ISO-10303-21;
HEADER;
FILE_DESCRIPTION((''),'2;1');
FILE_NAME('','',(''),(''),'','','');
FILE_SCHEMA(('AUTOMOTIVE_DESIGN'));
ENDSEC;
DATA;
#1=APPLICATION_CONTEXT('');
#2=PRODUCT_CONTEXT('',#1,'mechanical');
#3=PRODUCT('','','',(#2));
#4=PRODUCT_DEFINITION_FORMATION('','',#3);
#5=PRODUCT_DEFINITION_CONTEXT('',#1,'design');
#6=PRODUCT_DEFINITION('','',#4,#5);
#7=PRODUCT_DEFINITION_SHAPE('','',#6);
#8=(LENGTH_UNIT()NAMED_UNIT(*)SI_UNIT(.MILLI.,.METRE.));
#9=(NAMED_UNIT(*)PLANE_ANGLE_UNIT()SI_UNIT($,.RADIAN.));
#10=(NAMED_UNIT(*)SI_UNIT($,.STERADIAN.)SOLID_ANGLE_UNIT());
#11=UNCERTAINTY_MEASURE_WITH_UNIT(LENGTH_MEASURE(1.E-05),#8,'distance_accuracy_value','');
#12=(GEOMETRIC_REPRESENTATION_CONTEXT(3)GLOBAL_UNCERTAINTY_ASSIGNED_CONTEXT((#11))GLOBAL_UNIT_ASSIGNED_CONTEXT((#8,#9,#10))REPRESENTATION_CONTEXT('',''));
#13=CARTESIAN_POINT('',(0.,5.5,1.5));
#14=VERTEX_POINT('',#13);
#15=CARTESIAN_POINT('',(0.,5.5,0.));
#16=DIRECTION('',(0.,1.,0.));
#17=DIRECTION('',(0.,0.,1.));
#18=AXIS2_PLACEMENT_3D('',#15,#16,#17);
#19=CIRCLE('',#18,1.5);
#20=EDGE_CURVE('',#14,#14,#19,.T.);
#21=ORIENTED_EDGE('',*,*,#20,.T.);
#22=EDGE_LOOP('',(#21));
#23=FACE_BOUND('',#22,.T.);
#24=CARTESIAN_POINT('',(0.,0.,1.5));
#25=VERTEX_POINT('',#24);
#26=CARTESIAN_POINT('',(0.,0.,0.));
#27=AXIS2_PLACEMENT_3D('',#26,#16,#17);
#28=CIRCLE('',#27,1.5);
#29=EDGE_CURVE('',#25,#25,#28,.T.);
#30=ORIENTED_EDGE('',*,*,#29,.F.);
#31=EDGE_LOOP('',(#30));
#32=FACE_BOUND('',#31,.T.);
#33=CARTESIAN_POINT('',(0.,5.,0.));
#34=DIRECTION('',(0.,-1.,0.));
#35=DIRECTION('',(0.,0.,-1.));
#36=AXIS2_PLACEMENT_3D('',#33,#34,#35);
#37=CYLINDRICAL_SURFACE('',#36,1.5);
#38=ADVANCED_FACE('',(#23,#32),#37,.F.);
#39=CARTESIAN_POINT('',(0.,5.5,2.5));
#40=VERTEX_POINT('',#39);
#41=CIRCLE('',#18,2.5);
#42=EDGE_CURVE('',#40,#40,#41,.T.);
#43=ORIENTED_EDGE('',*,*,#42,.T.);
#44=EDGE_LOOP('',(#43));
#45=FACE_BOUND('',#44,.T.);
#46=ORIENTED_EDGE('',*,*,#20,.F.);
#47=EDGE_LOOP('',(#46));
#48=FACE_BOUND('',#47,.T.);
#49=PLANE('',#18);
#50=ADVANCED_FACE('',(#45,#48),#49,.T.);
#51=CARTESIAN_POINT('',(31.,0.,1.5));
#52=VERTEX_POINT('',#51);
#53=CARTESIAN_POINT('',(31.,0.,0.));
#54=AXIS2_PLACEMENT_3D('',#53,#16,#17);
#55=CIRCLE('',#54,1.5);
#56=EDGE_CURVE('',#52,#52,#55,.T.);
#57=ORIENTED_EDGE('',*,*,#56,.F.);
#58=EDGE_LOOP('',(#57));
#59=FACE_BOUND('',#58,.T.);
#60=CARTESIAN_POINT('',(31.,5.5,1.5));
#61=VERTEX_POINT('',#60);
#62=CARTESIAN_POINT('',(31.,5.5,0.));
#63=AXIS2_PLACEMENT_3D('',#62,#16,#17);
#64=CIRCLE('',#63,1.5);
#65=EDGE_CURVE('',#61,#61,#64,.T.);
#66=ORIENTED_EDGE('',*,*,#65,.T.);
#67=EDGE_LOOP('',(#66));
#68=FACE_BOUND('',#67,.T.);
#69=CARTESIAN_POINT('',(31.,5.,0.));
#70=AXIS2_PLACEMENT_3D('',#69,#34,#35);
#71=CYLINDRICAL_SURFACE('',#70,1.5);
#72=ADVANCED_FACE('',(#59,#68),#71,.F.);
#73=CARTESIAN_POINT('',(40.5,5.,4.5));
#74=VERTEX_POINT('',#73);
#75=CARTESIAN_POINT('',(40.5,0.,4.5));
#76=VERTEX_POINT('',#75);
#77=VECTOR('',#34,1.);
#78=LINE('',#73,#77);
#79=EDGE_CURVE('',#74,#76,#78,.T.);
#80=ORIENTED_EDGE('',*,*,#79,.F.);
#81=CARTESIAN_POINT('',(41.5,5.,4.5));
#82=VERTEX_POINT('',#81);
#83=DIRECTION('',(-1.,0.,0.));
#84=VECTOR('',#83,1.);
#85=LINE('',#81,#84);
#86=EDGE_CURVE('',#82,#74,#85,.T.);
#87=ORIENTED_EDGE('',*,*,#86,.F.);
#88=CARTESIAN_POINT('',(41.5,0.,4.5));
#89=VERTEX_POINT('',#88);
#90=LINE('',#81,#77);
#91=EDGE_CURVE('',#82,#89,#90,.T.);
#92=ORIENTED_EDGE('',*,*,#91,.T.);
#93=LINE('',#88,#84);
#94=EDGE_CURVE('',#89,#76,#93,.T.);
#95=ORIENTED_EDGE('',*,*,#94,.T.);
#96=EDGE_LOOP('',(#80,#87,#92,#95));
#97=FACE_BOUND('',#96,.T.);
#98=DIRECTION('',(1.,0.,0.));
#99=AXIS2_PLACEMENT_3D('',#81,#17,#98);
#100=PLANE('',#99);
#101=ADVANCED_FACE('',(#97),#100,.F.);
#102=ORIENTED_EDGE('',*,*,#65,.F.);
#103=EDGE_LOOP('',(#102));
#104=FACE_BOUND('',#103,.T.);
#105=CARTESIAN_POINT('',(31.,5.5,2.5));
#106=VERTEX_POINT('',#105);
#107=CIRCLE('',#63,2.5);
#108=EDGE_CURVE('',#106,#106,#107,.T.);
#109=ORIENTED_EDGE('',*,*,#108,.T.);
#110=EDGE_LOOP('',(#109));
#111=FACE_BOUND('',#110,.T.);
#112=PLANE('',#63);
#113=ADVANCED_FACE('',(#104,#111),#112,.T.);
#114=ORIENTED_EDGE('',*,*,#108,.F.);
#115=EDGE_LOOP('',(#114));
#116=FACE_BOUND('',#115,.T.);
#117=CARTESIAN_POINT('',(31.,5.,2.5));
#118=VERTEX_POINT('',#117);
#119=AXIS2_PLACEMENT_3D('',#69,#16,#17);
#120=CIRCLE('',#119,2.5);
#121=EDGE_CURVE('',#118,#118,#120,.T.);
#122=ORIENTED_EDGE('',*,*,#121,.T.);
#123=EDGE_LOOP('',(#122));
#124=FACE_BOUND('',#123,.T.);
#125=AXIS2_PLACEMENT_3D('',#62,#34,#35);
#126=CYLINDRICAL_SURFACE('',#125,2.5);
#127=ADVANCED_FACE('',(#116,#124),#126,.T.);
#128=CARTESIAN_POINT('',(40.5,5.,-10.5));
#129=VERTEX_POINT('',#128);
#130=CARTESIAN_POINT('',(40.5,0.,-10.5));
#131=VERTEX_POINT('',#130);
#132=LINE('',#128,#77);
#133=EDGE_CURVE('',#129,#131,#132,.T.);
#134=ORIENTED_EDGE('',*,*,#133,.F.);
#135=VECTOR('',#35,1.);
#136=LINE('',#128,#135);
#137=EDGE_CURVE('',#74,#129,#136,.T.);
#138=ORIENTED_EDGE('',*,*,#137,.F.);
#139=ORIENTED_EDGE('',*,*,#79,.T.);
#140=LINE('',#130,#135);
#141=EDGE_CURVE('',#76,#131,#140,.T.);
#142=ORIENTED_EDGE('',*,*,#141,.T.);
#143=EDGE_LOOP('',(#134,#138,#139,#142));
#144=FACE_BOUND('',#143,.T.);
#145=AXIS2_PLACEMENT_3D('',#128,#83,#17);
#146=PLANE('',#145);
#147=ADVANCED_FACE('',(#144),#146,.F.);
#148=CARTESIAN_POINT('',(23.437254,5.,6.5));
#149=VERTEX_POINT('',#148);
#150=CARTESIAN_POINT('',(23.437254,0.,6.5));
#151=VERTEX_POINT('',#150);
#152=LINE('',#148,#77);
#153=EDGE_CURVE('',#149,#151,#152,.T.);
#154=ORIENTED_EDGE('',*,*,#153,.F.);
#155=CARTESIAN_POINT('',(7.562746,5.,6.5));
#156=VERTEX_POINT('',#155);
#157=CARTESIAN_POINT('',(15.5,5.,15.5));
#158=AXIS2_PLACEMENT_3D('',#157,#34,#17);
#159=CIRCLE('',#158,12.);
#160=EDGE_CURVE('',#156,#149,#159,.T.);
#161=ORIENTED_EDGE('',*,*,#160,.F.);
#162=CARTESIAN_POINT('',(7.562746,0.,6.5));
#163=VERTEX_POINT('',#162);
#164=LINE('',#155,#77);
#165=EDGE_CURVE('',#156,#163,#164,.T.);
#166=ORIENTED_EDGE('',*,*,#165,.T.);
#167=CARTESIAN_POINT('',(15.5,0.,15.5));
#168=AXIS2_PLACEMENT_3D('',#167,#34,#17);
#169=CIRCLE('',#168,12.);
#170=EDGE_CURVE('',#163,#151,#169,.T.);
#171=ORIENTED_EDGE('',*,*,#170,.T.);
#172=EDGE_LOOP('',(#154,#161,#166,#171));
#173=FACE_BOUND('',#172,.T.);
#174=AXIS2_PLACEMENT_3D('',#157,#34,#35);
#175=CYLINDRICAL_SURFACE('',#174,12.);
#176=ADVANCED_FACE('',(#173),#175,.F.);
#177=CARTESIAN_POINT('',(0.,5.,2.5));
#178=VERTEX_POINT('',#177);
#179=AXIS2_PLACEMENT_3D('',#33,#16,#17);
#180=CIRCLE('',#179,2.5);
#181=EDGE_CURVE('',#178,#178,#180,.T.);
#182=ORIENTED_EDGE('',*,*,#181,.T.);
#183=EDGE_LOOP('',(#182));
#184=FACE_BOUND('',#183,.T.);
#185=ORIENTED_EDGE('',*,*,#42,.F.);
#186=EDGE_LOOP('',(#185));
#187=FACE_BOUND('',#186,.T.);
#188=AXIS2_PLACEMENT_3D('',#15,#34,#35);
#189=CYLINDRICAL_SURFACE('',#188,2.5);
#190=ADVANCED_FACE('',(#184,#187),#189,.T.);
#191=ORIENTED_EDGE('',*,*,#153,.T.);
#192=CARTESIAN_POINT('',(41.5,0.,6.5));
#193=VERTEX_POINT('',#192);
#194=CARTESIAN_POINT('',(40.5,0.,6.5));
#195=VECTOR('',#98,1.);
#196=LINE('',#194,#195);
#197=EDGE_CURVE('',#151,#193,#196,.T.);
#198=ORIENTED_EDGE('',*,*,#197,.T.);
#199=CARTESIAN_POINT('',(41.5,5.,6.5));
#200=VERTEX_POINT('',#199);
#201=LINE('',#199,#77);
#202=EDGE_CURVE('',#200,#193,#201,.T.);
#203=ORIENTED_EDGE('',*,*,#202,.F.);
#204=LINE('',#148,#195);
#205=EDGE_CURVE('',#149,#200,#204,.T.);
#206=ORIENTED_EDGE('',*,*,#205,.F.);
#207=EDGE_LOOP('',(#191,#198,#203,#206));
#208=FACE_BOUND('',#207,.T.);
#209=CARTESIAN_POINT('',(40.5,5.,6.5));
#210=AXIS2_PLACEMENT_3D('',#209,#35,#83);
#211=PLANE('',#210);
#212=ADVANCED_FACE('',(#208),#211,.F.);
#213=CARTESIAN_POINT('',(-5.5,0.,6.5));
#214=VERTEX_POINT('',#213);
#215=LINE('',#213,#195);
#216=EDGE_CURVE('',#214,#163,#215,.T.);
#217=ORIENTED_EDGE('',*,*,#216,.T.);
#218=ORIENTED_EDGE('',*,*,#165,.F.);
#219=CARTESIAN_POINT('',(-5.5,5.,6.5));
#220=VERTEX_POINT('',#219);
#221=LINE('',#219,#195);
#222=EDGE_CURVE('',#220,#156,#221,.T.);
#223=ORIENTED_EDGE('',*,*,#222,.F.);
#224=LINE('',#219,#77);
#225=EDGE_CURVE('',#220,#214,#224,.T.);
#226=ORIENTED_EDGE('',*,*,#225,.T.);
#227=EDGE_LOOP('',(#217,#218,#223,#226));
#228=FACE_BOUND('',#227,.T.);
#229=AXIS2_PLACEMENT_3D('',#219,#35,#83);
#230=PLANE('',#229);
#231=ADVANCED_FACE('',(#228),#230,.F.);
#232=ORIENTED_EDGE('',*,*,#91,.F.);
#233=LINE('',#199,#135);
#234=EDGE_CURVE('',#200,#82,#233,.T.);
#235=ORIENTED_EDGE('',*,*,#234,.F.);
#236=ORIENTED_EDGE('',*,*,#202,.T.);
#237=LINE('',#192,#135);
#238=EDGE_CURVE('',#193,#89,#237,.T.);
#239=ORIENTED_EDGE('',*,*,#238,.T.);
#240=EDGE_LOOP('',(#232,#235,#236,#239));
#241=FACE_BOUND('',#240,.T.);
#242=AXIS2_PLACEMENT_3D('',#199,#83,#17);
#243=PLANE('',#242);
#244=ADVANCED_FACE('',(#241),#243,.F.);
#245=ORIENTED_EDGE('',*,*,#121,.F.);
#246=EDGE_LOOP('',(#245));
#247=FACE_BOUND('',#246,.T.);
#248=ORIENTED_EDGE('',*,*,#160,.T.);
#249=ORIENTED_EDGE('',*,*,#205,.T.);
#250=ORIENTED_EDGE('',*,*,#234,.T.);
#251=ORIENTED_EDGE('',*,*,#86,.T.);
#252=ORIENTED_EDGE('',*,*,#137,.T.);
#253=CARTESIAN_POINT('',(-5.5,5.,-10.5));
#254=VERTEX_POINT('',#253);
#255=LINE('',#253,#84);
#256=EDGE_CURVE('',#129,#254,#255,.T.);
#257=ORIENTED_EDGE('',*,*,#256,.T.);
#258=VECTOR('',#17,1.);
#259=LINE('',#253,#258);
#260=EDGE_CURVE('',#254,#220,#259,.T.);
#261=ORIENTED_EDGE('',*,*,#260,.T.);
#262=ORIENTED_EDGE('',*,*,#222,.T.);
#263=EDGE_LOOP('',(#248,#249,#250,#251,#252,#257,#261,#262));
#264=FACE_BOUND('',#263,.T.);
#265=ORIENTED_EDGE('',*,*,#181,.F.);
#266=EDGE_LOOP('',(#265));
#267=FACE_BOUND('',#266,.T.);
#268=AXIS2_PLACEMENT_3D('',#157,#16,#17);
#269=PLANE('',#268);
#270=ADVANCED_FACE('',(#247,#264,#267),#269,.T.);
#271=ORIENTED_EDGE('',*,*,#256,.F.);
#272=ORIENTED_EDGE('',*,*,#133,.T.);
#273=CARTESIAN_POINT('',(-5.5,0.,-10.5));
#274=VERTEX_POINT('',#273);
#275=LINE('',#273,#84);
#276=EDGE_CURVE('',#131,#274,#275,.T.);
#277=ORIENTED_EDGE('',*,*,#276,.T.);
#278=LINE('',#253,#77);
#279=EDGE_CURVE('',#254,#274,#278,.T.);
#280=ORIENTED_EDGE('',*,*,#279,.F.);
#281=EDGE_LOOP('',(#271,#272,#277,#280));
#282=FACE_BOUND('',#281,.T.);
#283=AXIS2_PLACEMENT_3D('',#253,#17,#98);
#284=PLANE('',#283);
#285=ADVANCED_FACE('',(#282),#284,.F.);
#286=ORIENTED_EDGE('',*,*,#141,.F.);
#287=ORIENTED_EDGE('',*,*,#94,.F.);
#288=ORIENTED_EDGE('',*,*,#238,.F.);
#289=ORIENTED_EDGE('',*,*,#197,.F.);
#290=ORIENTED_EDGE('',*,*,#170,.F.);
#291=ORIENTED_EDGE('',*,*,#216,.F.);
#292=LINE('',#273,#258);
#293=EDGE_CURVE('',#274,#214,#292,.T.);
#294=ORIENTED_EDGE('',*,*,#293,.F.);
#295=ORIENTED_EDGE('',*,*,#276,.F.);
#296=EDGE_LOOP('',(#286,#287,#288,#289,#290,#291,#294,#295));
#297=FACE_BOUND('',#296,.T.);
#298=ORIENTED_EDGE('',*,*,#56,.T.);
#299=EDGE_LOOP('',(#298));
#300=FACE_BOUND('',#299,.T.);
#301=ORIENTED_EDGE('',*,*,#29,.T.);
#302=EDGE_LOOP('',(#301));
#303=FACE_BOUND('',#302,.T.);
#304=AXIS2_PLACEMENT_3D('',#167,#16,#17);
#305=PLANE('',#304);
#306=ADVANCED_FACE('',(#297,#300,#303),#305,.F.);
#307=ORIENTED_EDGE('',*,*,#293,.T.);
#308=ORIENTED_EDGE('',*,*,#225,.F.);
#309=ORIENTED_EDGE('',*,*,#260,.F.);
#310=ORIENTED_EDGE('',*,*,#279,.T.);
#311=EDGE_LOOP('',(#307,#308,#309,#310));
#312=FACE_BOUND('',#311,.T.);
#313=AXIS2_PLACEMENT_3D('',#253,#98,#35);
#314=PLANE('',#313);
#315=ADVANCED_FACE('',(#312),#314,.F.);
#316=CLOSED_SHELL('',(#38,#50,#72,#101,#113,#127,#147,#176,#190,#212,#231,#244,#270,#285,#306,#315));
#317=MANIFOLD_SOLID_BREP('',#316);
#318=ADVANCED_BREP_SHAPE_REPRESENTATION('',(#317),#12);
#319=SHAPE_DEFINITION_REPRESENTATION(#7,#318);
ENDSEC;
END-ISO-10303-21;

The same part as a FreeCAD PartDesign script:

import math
import FreeCAD as App
import Part
import Sketcher
Q = App.Units.Quantity

doc = App.newDocument("Part")
body = doc.addObject("PartDesign::Body", "Body")

sketch1 = body.newObject("Sketcher::SketchObject", "Sketch")
sketch1.AttachmentSupport = (doc.getObject("XZ_Plane"), [""])
sketch1.MapMode = "FlatFace"
sketch1.addGeometry([
    Part.LineSegment(App.Vector(41.5, 6.5, 0), App.Vector(41.5, 4.5, 0)),
    Part.LineSegment(App.Vector(41.5, 4.5, 0), App.Vector(40.5, 4.5, 0)),
    Part.LineSegment(App.Vector(40.5, 4.5, 0), App.Vector(40.5, -10.5, 0)),
    Part.LineSegment(App.Vector(40.5, -10.5, 0), App.Vector(-5.5, -10.5, 0)),
    Part.LineSegment(App.Vector(-5.5, -10.5, 0), App.Vector(-5.5, 6.5, 0)),
    Part.LineSegment(App.Vector(-5.5, 6.5, 0), App.Vector(7.562746, 6.5, 0)),
    Part.ArcOfCircle(Part.Circle(App.Vector(15.5, 15.5, 0), App.Vector(0, 0, 1), 12), math.radians(-131.409622), math.radians(-48.590378)),
    Part.LineSegment(App.Vector(23.437254, 6.5, 0), App.Vector(41.5, 6.5, 0)),
    Part.Circle(App.Vector(0, 0, 0), App.Vector(0, 0, 1), 1.5),
    Part.Circle(App.Vector(31, 0, 0), App.Vector(0, 0, 1), 1.5),
], False)
sketch1.addConstraint([
    Sketcher.Constraint("Coincident", 0, 2, 1, 1),
    Sketcher.Constraint("Coincident", 1, 2, 2, 1),
    Sketcher.Constraint("Coincident", 2, 2, 3, 1),
    Sketcher.Constraint("Coincident", 3, 2, 4, 1),
    Sketcher.Constraint("Coincident", 4, 2, 5, 1),
    Sketcher.Constraint("Coincident", 5, 2, 6, 1),
    Sketcher.Constraint("Coincident", 6, 2, 7, 1),
    Sketcher.Constraint("Coincident", 7, 2, 0, 1),
    Sketcher.Constraint("Vertical", 0),
    Sketcher.Constraint("Horizontal", 1),
    Sketcher.Constraint("Vertical", 2),
    Sketcher.Constraint("Horizontal", 3),
    Sketcher.Constraint("Vertical", 4),
    Sketcher.Constraint("Horizontal", 5),
    Sketcher.Constraint("Horizontal", 7),
    Sketcher.Constraint("Coincident", 8, 3, -1, 1),
    Sketcher.Constraint("Equal", 8, 9),
    Sketcher.Constraint("PointOnObject", 9, 3, -1),
    Sketcher.Constraint("Horizontal", 5, 2, 6, 2),
    Sketcher.Constraint("Diameter", 8, Q("3 mm")),
    Sketcher.Constraint("Radius", 6, Q("12 mm")),
    Sketcher.Constraint("DistanceX", 1, 2, 1, 1, Q("1 mm")),
    Sketcher.Constraint("DistanceX", 3, 2, 3, 1, Q("46 mm")),
    Sketcher.Constraint("DistanceY", 0, 2, 0, 1, Q("2 mm")),
    Sketcher.Constraint("DistanceY", 2, 2, 2, 1, Q("15 mm")),
    Sketcher.Constraint("DistanceX", -1, 1, 9, 3, Q("31 mm")),
    Sketcher.Constraint("DistanceX", 6, 3, 0, 2, Q("26 mm")),
    Sketcher.Constraint("DistanceY", 0, 2, 6, 3, Q("11 mm")),
    Sketcher.Constraint("DistanceX", -1, 1, 6, 3, Q("15.5 mm")),
    Sketcher.Constraint("DistanceY", -1, 1, 6, 3, Q("15.5 mm")),
])
pad1 = body.newObject("PartDesign::Pad", "Pad")
pad1.Profile = sketch1
pad1.Length = 5
pad1.Reversed = True

sketch2 = body.newObject("Sketcher::SketchObject", "Sketch001")
sketch2.AttachmentSupport = (doc.getObject("XZ_Plane"), [""])
sketch2.MapMode = "FlatFace"
sketch2.AttachmentOffset = App.Placement(App.Vector(0, 0, -5), App.Rotation())
sketch2.addGeometry([
    Part.Circle(App.Vector(0, 0, 0), App.Vector(0, 0, 1), 2.5),
    Part.Circle(App.Vector(0, 0, 0), App.Vector(0, 0, 1), 1.5),
    Part.Circle(App.Vector(31, 0, 0), App.Vector(0, 0, 1), 2.5),
    Part.Circle(App.Vector(31, 0, 0), App.Vector(0, 0, 1), 1.5),
], False)
sketch2.addConstraint([
    Sketcher.Constraint("Coincident", 0, 3, -1, 1),
    Sketcher.Constraint("Coincident", 1, 3, -1, 1),
    Sketcher.Constraint("Coincident", 3, 3, 2, 3),
    Sketcher.Constraint("Equal", 0, 2),
    Sketcher.Constraint("Equal", 1, 3),
    Sketcher.Constraint("PointOnObject", 2, 3, -1),
    Sketcher.Constraint("Diameter", 0, Q("5 mm")),
    Sketcher.Constraint("Diameter", 1, Q("3 mm")),
    Sketcher.Constraint("DistanceX", -1, 1, 2, 3, Q("31 mm")),
])
pad2 = body.newObject("PartDesign::Pad", "Pad001")
pad2.Profile = sketch2
pad2.Length = 0.5
pad2.Reversed = True

doc.recompute()
